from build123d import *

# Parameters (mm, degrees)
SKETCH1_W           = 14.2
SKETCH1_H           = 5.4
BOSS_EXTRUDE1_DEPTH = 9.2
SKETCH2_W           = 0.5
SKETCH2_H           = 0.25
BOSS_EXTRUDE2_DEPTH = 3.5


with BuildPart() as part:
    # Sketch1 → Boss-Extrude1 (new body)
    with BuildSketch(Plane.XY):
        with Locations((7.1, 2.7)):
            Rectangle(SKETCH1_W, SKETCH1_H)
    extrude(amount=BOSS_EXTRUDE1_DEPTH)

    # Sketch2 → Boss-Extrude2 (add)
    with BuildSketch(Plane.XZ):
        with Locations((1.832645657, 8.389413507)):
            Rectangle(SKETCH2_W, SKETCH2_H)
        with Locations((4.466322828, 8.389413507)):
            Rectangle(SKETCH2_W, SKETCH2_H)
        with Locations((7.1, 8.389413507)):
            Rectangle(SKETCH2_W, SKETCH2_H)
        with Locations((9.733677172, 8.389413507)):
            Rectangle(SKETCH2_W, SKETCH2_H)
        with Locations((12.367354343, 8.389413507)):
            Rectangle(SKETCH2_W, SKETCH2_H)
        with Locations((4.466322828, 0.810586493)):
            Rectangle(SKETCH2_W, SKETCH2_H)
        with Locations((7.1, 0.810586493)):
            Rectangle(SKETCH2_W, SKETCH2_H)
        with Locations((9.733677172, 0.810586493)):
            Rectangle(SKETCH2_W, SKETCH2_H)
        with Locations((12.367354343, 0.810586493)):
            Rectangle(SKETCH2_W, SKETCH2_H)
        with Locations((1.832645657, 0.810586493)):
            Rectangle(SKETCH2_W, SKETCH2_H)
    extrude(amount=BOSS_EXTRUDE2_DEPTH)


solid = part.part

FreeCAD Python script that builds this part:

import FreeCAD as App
import Part
import Sketcher
from FreeCAD import Vector

doc = App.newDocument("Part")
params = doc.addObject("Spreadsheet::Sheet", "Params")
for row, (alias, value) in enumerate([
    ("sketch1_width", "14.2 mm"),
    ("sketch1_height", "5.4 mm"),
    ("pad1_length", "9.2 mm"),
    ("sketch2_width", "0.5 mm"),
    ("sketch2_height", "0.25 mm"),
    ("pad2_length", "3.5 mm"),
], start=1):
    params.set(f"A{row}", alias)
    params.set(f"B{row}", "=" + value)
    params.setAlias(f"B{row}", alias)

body = doc.addObject("PartDesign::Body", "Body")

# Sketch on XY plane
sketch1 = doc.addObject("Sketcher::SketchObject", "Sketch")
body.addObject(sketch1)
sketch1.AttachmentSupport = (doc.XY_Plane, [""])
sketch1.MapMode = "FlatFace"
sketch1.addGeometry([
    Part.LineSegment(Vector(0, 5.4, 0), Vector(0, 0, 0)),
    Part.LineSegment(Vector(0, 0, 0), Vector(14.2, 0, 0)),
    Part.LineSegment(Vector(14.2, 0, 0), Vector(14.2, 5.4, 0)),
    Part.LineSegment(Vector(14.2, 5.4, 0), Vector(0, 5.4, 0)),
], False)
sketch1.addConstraint([
    Sketcher.Constraint("Coincident", 0, 2, 1, 1),
    Sketcher.Constraint("Coincident", 1, 2, 2, 1),
    Sketcher.Constraint("Coincident", 2, 2, 3, 1),
    Sketcher.Constraint("Coincident", 3, 2, 0, 1),
    Sketcher.Constraint("Vertical", 0),
    Sketcher.Constraint("Horizontal", 1),
    Sketcher.Constraint("Vertical", 2),
    Sketcher.Constraint("Horizontal", 3),
    Sketcher.Constraint("Coincident", 0, 2, -1, 1),
    Sketcher.Constraint("DistanceX", 1, 1, 1, 2, 14.2),
    Sketcher.Constraint("DistanceY", 0, 2, 0, 1, 5.4),
])
sketch1.setExpression("Constraints[9]", "Params.sketch1_width")
sketch1.setExpression("Constraints[10]", "Params.sketch1_height")
pad1 = doc.addObject("PartDesign::Pad", "Pad")
body.addObject(pad1)
pad1.Profile = sketch1
pad1.setExpression("Length", "Params.pad1_length")

# Sketch on XZ plane
sketch2 = doc.addObject("Sketcher::SketchObject", "Sketch001")
body.addObject(sketch2)
sketch2.AttachmentSupport = (doc.XZ_Plane, [""])
sketch2.MapMode = "FlatFace"
sketch2.addGeometry([
    Part.LineSegment(Vector(1.582646, 8.514414, 0), Vector(1.582646, 8.264414, 0)),  # 0
    Part.LineSegment(Vector(1.582646, 8.264414, 0), Vector(2.082646, 8.264414, 0)),  # 1
    Part.LineSegment(Vector(2.082646, 8.264414, 0), Vector(2.082646, 8.514414, 0)),  # 2
    Part.LineSegment(Vector(2.082646, 8.514414, 0), Vector(1.582646, 8.514414, 0)),  # 3
    Part.LineSegment(Vector(4.216323, 8.514414, 0), Vector(4.216323, 8.264414, 0)),  # 4
    Part.LineSegment(Vector(4.216323, 8.264414, 0), Vector(4.716323, 8.264414, 0)),  # 5
    Part.LineSegment(Vector(4.716323, 8.264414, 0), Vector(4.716323, 8.514414, 0)),  # 6
    Part.LineSegment(Vector(4.716323, 8.514414, 0), Vector(4.216323, 8.514414, 0)),  # 7
    Part.LineSegment(Vector(6.85, 8.514414, 0), Vector(6.85, 8.264414, 0)),  # 8
    Part.LineSegment(Vector(6.85, 8.264414, 0), Vector(7.35, 8.264414, 0)),  # 9
    Part.LineSegment(Vector(7.35, 8.264414, 0), Vector(7.35, 8.514414, 0)),  # 10
    Part.LineSegment(Vector(7.35, 8.514414, 0), Vector(6.85, 8.514414, 0)),  # 11
    Part.LineSegment(Vector(9.483677, 8.514414, 0), Vector(9.483677, 8.264414, 0)),  # 12
    Part.LineSegment(Vector(9.483677, 8.264414, 0), Vector(9.983677, 8.264414, 0)),  # 13
    Part.LineSegment(Vector(9.983677, 8.264414, 0), Vector(9.983677, 8.514414, 0)),  # 14
    Part.LineSegment(Vector(9.983677, 8.514414, 0), Vector(9.483677, 8.514414, 0)),  # 15
    Part.LineSegment(Vector(12.117354, 8.514414, 0), Vector(12.117354, 8.264414, 0)),  # 16
    Part.LineSegment(Vector(12.117354, 8.264414, 0), Vector(12.617354, 8.264414, 0)),  # 17
    Part.LineSegment(Vector(12.617354, 8.264414, 0), Vector(12.617354, 8.514414, 0)),  # 18
    Part.LineSegment(Vector(12.617354, 8.514414, 0), Vector(12.117354, 8.514414, 0)),  # 19
    Part.LineSegment(Vector(4.216323, 0.935586, 0), Vector(4.216323, 0.685586, 0)),  # 20
    Part.LineSegment(Vector(4.216323, 0.685586, 0), Vector(4.716323, 0.685586, 0)),  # 21
    Part.LineSegment(Vector(4.716323, 0.685586, 0), Vector(4.716323, 0.935586, 0)),  # 22
    Part.LineSegment(Vector(4.716323, 0.935586, 0), Vector(4.216323, 0.935586, 0)),  # 23
    Part.LineSegment(Vector(6.85, 0.935586, 0), Vector(6.85, 0.685586, 0)),  # 24
    Part.LineSegment(Vector(6.85, 0.685586, 0), Vector(7.35, 0.685586, 0)),  # 25
    Part.LineSegment(Vector(7.35, 0.685586, 0), Vector(7.35, 0.935586, 0)),  # 26
    Part.LineSegment(Vector(7.35, 0.935586, 0), Vector(6.85, 0.935586, 0)),  # 27
    Part.LineSegment(Vector(9.483677, 0.935586, 0), Vector(9.483677, 0.685586, 0)),  # 28
    Part.LineSegment(Vector(9.483677, 0.685586, 0), Vector(9.983677, 0.685586, 0)),  # 29
    Part.LineSegment(Vector(9.983677, 0.685586, 0), Vector(9.983677, 0.935586, 0)),  # 30
    Part.LineSegment(Vector(9.983677, 0.935586, 0), Vector(9.483677, 0.935586, 0)),  # 31
    Part.LineSegment(Vector(12.117354, 0.935586, 0), Vector(12.117354, 0.685586, 0)),  # 32
    Part.LineSegment(Vector(12.117354, 0.685586, 0), Vector(12.617354, 0.685586, 0)),  # 33
    Part.LineSegment(Vector(12.617354, 0.685586, 0), Vector(12.617354, 0.935586, 0)),  # 34
    Part.LineSegment(Vector(12.617354, 0.935586, 0), Vector(12.117354, 0.935586, 0)),  # 35
    Part.LineSegment(Vector(1.582646, 0.935586, 0), Vector(1.582646, 0.685586, 0)),  # 36
    Part.LineSegment(Vector(1.582646, 0.685586, 0), Vector(2.082646, 0.685586, 0)),  # 37
    Part.LineSegment(Vector(2.082646, 0.685586, 0), Vector(2.082646, 0.935586, 0)),  # 38
    Part.LineSegment(Vector(2.082646, 0.935586, 0), Vector(1.582646, 0.935586, 0)),  # 39
], False)
sketch2.addConstraint([
    Sketcher.Constraint("Coincident", 0, 2, 1, 1),
    Sketcher.Constraint("Coincident", 1, 2, 2, 1),
    Sketcher.Constraint("Coincident", 2, 2, 3, 1),
    Sketcher.Constraint("Coincident", 3, 2, 0, 1),
    Sketcher.Constraint("Coincident", 4, 2, 5, 1),
    Sketcher.Constraint("Coincident", 5, 2, 6, 1),
    Sketcher.Constraint("Coincident", 6, 2, 7, 1),
    Sketcher.Constraint("Coincident", 7, 2, 4, 1),
    Sketcher.Constraint("Coincident", 8, 2, 9, 1),
    Sketcher.Constraint("Coincident", 9, 2, 10, 1),
    Sketcher.Constraint("Coincident", 10, 2, 11, 1),
    Sketcher.Constraint("Coincident", 11, 2, 8, 1),
    Sketcher.Constraint("Coincident", 12, 2, 13, 1),
    Sketcher.Constraint("Coincident", 13, 2, 14, 1),
    Sketcher.Constraint("Coincident", 14, 2, 15, 1),
    Sketcher.Constraint("Coincident", 15, 2, 12, 1),
    Sketcher.Constraint("Coincident", 16, 2, 17, 1),
    Sketcher.Constraint("Coincident", 17, 2, 18, 1),
    Sketcher.Constraint("Coincident", 18, 2, 19, 1),
    Sketcher.Constraint("Coincident", 19, 2, 16, 1),
    Sketcher.Constraint("Coincident", 20, 2, 21, 1),
    Sketcher.Constraint("Coincident", 21, 2, 22, 1),
    Sketcher.Constraint("Coincident", 22, 2, 23, 1),
    Sketcher.Constraint("Coincident", 23, 2, 20, 1),
    Sketcher.Constraint("Coincident", 24, 2, 25, 1),
    Sketcher.Constraint("Coincident", 25, 2, 26, 1),
    Sketcher.Constraint("Coincident", 26, 2, 27, 1),
    Sketcher.Constraint("Coincident", 27, 2, 24, 1),
    Sketcher.Constraint("Coincident", 28, 2, 29, 1),
    Sketcher.Constraint("Coincident", 29, 2, 30, 1),
    Sketcher.Constraint("Coincident", 30, 2, 31, 1),
    Sketcher.Constraint("Coincident", 31, 2, 28, 1),
    Sketcher.Constraint("Coincident", 32, 2, 33, 1),
    Sketcher.Constraint("Coincident", 33, 2, 34, 1),
    Sketcher.Constraint("Coincident", 34, 2, 35, 1),
    Sketcher.Constraint("Coincident", 35, 2, 32, 1),
    Sketcher.Constraint("Coincident", 36, 2, 37, 1),
    Sketcher.Constraint("Coincident", 37, 2, 38, 1),
    Sketcher.Constraint("Coincident", 38, 2, 39, 1),
    Sketcher.Constraint("Coincident", 39, 2, 36, 1),
    Sketcher.Constraint("Vertical", 0),
    Sketcher.Constraint("Horizontal", 1),
    Sketcher.Constraint("Vertical", 2),
    Sketcher.Constraint("Horizontal", 3),
    Sketcher.Constraint("Vertical", 4),
    Sketcher.Constraint("Horizontal", 5),
    Sketcher.Constraint("Vertical", 6),
    Sketcher.Constraint("Horizontal", 7),
    Sketcher.Constraint("Vertical", 8),
    Sketcher.Constraint("Horizontal", 9),
    Sketcher.Constraint("Vertical", 10),
    Sketcher.Constraint("Horizontal", 11),
    Sketcher.Constraint("Vertical", 12),
    Sketcher.Constraint("Horizontal", 13),
    Sketcher.Constraint("Vertical", 14),
    Sketcher.Constraint("Horizontal", 15),
    Sketcher.Constraint("Vertical", 16),
    Sketcher.Constraint("Horizontal", 17),
    Sketcher.Constraint("Vertical", 18),
    Sketcher.Constraint("Horizontal", 19),
    Sketcher.Constraint("Vertical", 20),
    Sketcher.Constraint("Horizontal", 21),
    Sketcher.Constraint("Vertical", 22),
    Sketcher.Constraint("Horizontal", 23),
    Sketcher.Constraint("Vertical", 24),
    Sketcher.Constraint("Horizontal", 25),
    Sketcher.Constraint("Vertical", 26),
    Sketcher.Constraint("Horizontal", 27),
    Sketcher.Constraint("Vertical", 28),
    Sketcher.Constraint("Horizontal", 29),
    Sketcher.Constraint("Vertical", 30),
    Sketcher.Constraint("Horizontal", 31),
    Sketcher.Constraint("Vertical", 32),
    Sketcher.Constraint("Horizontal", 33),
    Sketcher.Constraint("Vertical", 34),
    Sketcher.Constraint("Horizontal", 35),
    Sketcher.Constraint("Vertical", 36),
    Sketcher.Constraint("Horizontal", 37),
    Sketcher.Constraint("Vertical", 38),
    Sketcher.Constraint("Horizontal", 39),
    Sketcher.Constraint("Horizontal", 1, 2, 4, 2),
    Sketcher.Constraint("Horizontal", 3, 2, 6, 2),
    Sketcher.Constraint("Horizontal", 5, 2, 8, 2),
    Sketcher.Constraint("Horizontal", 7, 2, 10, 2),
    Sketcher.Constraint("Horizontal", 9, 2, 12, 2),
    Sketcher.Constraint("Horizontal", 11, 2, 14, 2),
    Sketcher.Constraint("Horizontal", 13, 2, 16, 2),
    Sketcher.Constraint("Horizontal", 15, 2, 18, 2),
    Sketcher.Constraint("Horizontal", 21, 2, 24, 2),
    Sketcher.Constraint("Horizontal", 23, 2, 26, 2),
    Sketcher.Constraint("Horizontal", 25, 2, 28, 2),
    Sketcher.Constraint("Horizontal", 27, 2, 30, 2),
    Sketcher.Constraint("Horizontal", 29, 2, 32, 2),
    Sketcher.Constraint("Horizontal", 31, 2, 34, 2),
    Sketcher.Constraint("Horizontal", 33, 2, 36, 2),
    Sketcher.Constraint("Horizontal", 35, 2, 38, 2),
    Sketcher.Constraint("Vertical", 7, 2, 20, 2),
    Sketcher.Constraint("Vertical", 6, 2, 21, 2),
    Sketcher.Constraint("Vertical", 11, 2, 24, 2),
    Sketcher.Constraint("Vertical", 10, 2, 25, 2),
    Sketcher.Constraint("Vertical", 15, 2, 28, 2),
    Sketcher.Constraint("Vertical", 14, 2, 29, 2),
    Sketcher.Constraint("Vertical", 19, 2, 32, 2),
    Sketcher.Constraint("Vertical", 18, 2, 33, 2),
    Sketcher.Constraint("Vertical", 3, 2, 36, 2),
    Sketcher.Constraint("Vertical", 2, 2, 37, 2),
    Sketcher.Constraint("Equal", 3, 5),
    Sketcher.Constraint("Equal", 7, 9),
    Sketcher.Constraint("Equal", 11, 13),
    Sketcher.Constraint("Equal", 15, 17),
    Sketcher.Constraint("Equal", 18, 20),
    Sketcher.Constraint("DistanceX", 1, 1, 1, 2, 0.5),
    Sketcher.Constraint("DistanceY", 0, 2, 0, 1, 0.25),
    Sketcher.Constraint("DistanceX", -1, 1, 8, 2, 6.85),
    Sketcher.Constraint("DistanceX", -1, 1, 0, 2, 1.582646),
    Sketcher.Constraint("DistanceY", -1, 1, 0, 2, 8.264414),
    Sketcher.Constraint("DistanceX", -1, 1, 4, 2, 4.216323),
    Sketcher.Constraint("DistanceX", -1, 1, 12, 2, 9.483677),
    Sketcher.Constraint("DistanceX", -1, 1, 16, 2, 12.117354),
    Sketcher.Constraint("DistanceY", -1, 1, 20, 2, 0.685586),
])
sketch2.setExpression("Constraints[111]", "Params.sketch2_width")
sketch2.setExpression("Constraints[112]", "Params.sketch2_height")
pad2 = doc.addObject("PartDesign::Pad", "Pad001")
body.addObject(pad2)
pad2.Profile = sketch2
pad2.setExpression("Length", "Params.pad2_length")

doc.recompute()
